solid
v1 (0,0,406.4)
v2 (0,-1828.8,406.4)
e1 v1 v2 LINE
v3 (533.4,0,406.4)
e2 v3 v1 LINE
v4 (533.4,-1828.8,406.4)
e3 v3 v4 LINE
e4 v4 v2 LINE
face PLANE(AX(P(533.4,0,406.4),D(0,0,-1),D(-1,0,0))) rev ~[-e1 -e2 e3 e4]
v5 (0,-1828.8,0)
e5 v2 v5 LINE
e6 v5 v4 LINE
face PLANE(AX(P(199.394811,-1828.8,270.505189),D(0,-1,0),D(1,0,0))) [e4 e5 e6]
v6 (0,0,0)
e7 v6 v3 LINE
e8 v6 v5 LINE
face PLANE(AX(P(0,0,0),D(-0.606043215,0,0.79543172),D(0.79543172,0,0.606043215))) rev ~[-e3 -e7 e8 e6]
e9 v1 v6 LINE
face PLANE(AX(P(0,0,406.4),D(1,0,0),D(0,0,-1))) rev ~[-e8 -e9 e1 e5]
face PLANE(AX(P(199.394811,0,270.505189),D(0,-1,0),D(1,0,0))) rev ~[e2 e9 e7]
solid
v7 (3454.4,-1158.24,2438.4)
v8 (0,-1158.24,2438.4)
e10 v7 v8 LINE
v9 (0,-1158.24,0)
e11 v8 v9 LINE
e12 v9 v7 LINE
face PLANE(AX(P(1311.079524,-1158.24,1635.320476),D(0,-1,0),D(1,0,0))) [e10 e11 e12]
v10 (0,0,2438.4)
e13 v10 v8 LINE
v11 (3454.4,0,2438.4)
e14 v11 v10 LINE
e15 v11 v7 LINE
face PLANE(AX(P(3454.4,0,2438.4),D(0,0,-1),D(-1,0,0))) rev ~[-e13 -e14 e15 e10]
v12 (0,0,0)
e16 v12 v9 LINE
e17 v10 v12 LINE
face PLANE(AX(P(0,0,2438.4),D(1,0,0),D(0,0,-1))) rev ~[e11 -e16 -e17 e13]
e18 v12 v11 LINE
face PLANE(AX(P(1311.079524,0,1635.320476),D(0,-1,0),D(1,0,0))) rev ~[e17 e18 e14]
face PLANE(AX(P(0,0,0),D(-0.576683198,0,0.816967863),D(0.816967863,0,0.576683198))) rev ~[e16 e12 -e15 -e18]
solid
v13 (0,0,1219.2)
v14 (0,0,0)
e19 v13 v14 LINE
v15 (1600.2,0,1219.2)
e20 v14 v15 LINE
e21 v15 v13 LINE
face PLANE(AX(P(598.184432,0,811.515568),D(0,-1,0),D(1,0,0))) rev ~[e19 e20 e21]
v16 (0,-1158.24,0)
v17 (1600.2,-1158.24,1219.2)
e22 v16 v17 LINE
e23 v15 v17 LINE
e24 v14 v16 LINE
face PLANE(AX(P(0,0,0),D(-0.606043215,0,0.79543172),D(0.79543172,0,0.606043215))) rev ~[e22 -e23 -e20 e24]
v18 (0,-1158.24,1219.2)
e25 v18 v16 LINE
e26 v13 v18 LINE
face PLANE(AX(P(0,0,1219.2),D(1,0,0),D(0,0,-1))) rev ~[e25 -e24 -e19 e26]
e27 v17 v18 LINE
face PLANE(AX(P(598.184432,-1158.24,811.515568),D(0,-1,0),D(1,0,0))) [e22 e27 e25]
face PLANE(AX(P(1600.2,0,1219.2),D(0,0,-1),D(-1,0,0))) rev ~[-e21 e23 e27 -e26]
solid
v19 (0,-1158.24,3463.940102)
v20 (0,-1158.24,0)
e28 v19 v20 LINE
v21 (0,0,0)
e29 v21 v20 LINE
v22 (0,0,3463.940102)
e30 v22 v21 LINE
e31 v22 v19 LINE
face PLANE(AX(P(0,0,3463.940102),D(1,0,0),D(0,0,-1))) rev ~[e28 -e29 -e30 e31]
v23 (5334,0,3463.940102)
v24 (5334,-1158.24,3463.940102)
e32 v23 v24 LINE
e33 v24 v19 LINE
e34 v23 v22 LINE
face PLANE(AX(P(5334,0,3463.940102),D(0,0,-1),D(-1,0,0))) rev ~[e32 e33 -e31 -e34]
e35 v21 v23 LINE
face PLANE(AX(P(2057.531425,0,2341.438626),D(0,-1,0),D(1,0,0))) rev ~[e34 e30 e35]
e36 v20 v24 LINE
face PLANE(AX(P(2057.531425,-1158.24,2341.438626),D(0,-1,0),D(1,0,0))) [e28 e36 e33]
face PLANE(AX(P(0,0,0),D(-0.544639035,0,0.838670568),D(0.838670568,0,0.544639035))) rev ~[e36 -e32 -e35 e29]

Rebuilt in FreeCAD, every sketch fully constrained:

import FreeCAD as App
import Part
import Sketcher
from FreeCAD import Vector
Q = App.Units.Quantity


def add_polygon(sketch, points):
    """Adds a closed chain of lines whose ends are joined by coincident constraints."""
    first, n = sketch.GeometryCount, len(points)
    for a, b in zip(points, points[1:] + points[:1]):
        sketch.addGeometry(Part.LineSegment(App.Vector(*a, 0), App.Vector(*b, 0)), False)
    for i in range(n):
        sketch.addConstraint(Sketcher.Constraint("Coincident", first + i, 2, first + (i + 1) % n, 1))

doc = App.newDocument("Part")
body = doc.addObject("PartDesign::Body", "Body")

# Sketch on XZ plane
sketch1 = doc.addObject("Sketcher::SketchObject", "Sketch")
body.addObject(sketch1)
sketch1.AttachmentSupport = (doc.XZ_Plane, [""])
sketch1.MapMode = "FlatFace"
add_polygon(sketch1, [(0, 3464), (0, 0), (5334, 3464)])  # lines 0-2
sketch1.addConstraint([
    Sketcher.Constraint("Vertical", 0),
    Sketcher.Constraint("Horizontal", 2),
    Sketcher.Constraint("Coincident", 0, 2, -1, 1),
    Sketcher.Constraint("DistanceX", 2, 2, 2, 1, Q("210 in")),
    Sketcher.Constraint("Angle", 1, Q("33 deg")),
])
pad1 = doc.addObject("PartDesign::Pad", "Pad")
body.addObject(pad1)
pad1.Profile = sketch1
pad1.Length = Q("45.6 in")
body2 = doc.addObject("PartDesign::Body", "Body001")

# Sketch on XZ plane
sketch2 = doc.addObject("Sketcher::SketchObject", "Sketch001")
body2.addObject(sketch2)
sketch2.AttachmentSupport = (doc.getObject("XZ_Plane001"), [""])
sketch2.MapMode = "FlatFace"
add_polygon(sketch2, [(0, 2438), (0, 0), (3454, 2438)])  # lines 0-2
sketch2.addConstraint([
    Sketcher.Constraint("Vertical", 0),
    Sketcher.Constraint("Horizontal", 2),
    Sketcher.Constraint("Coincident", 0, 2, -1, 1),
    Sketcher.Constraint("DistanceX", 2, 2, 2, 1, Q("136 in")),
    Sketcher.Constraint("DistanceY", 0, 2, 0, 1, Q("96 in")),
])
pad2 = doc.addObject("PartDesign::Pad", "Pad001")
body2.addObject(pad2)
pad2.Profile = sketch2
pad2.Length = Q("45.6 in")
body3 = doc.addObject("PartDesign::Body", "Body002")

# Sketch on XZ plane
sketch3 = doc.addObject("Sketcher::SketchObject", "Sketch002")
body3.addObject(sketch3)
sketch3.AttachmentSupport = (doc.getObject("XZ_Plane002"), [""])
sketch3.MapMode = "FlatFace"
add_polygon(sketch3, [(0, 1219), (0, 0), (1600, 1219)])  # lines 0-2
sketch3.addConstraint([
    Sketcher.Constraint("Vertical", 0),
    Sketcher.Constraint("Horizontal", 2),
    Sketcher.Constraint("Coincident", 0, 2, -1, 1),
    Sketcher.Constraint("DistanceX", 2, 2, 2, 1, Q("63 in")),
    Sketcher.Constraint("DistanceY", 0, 2, 0, 1, Q("48 in")),
])
pad3 = doc.addObject("PartDesign::Pad", "Pad002")
body3.addObject(pad3)
pad3.Profile = sketch3
pad3.Length = Q("45.6 in")
body4 = doc.addObject("PartDesign::Body", "Body003")

# Sketch on XZ plane
sketch4 = doc.addObject("Sketcher::SketchObject", "Sketch003")
body4.addObject(sketch4)
sketch4.AttachmentSupport = (doc.getObject("XZ_Plane003"), [""])
sketch4.MapMode = "FlatFace"
add_polygon(sketch4, [(0, 406), (0, 0), (533, 406)])  # lines 0-2
sketch4.addConstraint([
    Sketcher.Constraint("Vertical", 0),
    Sketcher.Constraint("Horizontal", 2),
    Sketcher.Constraint("Coincident", 0, 2, -1, 1),
    Sketcher.Constraint("DistanceX", 2, 2, 2, 1, Q("21 in")),
    Sketcher.Constraint("DistanceY", 0, 2, 0, 1, Q("16 in")),
])
pad4 = doc.addObject("PartDesign::Pad", "Pad003")
body4.addObject(pad4)
pad4.Profile = sketch4
pad4.Length = Q("72 in")

doc.recompute()
